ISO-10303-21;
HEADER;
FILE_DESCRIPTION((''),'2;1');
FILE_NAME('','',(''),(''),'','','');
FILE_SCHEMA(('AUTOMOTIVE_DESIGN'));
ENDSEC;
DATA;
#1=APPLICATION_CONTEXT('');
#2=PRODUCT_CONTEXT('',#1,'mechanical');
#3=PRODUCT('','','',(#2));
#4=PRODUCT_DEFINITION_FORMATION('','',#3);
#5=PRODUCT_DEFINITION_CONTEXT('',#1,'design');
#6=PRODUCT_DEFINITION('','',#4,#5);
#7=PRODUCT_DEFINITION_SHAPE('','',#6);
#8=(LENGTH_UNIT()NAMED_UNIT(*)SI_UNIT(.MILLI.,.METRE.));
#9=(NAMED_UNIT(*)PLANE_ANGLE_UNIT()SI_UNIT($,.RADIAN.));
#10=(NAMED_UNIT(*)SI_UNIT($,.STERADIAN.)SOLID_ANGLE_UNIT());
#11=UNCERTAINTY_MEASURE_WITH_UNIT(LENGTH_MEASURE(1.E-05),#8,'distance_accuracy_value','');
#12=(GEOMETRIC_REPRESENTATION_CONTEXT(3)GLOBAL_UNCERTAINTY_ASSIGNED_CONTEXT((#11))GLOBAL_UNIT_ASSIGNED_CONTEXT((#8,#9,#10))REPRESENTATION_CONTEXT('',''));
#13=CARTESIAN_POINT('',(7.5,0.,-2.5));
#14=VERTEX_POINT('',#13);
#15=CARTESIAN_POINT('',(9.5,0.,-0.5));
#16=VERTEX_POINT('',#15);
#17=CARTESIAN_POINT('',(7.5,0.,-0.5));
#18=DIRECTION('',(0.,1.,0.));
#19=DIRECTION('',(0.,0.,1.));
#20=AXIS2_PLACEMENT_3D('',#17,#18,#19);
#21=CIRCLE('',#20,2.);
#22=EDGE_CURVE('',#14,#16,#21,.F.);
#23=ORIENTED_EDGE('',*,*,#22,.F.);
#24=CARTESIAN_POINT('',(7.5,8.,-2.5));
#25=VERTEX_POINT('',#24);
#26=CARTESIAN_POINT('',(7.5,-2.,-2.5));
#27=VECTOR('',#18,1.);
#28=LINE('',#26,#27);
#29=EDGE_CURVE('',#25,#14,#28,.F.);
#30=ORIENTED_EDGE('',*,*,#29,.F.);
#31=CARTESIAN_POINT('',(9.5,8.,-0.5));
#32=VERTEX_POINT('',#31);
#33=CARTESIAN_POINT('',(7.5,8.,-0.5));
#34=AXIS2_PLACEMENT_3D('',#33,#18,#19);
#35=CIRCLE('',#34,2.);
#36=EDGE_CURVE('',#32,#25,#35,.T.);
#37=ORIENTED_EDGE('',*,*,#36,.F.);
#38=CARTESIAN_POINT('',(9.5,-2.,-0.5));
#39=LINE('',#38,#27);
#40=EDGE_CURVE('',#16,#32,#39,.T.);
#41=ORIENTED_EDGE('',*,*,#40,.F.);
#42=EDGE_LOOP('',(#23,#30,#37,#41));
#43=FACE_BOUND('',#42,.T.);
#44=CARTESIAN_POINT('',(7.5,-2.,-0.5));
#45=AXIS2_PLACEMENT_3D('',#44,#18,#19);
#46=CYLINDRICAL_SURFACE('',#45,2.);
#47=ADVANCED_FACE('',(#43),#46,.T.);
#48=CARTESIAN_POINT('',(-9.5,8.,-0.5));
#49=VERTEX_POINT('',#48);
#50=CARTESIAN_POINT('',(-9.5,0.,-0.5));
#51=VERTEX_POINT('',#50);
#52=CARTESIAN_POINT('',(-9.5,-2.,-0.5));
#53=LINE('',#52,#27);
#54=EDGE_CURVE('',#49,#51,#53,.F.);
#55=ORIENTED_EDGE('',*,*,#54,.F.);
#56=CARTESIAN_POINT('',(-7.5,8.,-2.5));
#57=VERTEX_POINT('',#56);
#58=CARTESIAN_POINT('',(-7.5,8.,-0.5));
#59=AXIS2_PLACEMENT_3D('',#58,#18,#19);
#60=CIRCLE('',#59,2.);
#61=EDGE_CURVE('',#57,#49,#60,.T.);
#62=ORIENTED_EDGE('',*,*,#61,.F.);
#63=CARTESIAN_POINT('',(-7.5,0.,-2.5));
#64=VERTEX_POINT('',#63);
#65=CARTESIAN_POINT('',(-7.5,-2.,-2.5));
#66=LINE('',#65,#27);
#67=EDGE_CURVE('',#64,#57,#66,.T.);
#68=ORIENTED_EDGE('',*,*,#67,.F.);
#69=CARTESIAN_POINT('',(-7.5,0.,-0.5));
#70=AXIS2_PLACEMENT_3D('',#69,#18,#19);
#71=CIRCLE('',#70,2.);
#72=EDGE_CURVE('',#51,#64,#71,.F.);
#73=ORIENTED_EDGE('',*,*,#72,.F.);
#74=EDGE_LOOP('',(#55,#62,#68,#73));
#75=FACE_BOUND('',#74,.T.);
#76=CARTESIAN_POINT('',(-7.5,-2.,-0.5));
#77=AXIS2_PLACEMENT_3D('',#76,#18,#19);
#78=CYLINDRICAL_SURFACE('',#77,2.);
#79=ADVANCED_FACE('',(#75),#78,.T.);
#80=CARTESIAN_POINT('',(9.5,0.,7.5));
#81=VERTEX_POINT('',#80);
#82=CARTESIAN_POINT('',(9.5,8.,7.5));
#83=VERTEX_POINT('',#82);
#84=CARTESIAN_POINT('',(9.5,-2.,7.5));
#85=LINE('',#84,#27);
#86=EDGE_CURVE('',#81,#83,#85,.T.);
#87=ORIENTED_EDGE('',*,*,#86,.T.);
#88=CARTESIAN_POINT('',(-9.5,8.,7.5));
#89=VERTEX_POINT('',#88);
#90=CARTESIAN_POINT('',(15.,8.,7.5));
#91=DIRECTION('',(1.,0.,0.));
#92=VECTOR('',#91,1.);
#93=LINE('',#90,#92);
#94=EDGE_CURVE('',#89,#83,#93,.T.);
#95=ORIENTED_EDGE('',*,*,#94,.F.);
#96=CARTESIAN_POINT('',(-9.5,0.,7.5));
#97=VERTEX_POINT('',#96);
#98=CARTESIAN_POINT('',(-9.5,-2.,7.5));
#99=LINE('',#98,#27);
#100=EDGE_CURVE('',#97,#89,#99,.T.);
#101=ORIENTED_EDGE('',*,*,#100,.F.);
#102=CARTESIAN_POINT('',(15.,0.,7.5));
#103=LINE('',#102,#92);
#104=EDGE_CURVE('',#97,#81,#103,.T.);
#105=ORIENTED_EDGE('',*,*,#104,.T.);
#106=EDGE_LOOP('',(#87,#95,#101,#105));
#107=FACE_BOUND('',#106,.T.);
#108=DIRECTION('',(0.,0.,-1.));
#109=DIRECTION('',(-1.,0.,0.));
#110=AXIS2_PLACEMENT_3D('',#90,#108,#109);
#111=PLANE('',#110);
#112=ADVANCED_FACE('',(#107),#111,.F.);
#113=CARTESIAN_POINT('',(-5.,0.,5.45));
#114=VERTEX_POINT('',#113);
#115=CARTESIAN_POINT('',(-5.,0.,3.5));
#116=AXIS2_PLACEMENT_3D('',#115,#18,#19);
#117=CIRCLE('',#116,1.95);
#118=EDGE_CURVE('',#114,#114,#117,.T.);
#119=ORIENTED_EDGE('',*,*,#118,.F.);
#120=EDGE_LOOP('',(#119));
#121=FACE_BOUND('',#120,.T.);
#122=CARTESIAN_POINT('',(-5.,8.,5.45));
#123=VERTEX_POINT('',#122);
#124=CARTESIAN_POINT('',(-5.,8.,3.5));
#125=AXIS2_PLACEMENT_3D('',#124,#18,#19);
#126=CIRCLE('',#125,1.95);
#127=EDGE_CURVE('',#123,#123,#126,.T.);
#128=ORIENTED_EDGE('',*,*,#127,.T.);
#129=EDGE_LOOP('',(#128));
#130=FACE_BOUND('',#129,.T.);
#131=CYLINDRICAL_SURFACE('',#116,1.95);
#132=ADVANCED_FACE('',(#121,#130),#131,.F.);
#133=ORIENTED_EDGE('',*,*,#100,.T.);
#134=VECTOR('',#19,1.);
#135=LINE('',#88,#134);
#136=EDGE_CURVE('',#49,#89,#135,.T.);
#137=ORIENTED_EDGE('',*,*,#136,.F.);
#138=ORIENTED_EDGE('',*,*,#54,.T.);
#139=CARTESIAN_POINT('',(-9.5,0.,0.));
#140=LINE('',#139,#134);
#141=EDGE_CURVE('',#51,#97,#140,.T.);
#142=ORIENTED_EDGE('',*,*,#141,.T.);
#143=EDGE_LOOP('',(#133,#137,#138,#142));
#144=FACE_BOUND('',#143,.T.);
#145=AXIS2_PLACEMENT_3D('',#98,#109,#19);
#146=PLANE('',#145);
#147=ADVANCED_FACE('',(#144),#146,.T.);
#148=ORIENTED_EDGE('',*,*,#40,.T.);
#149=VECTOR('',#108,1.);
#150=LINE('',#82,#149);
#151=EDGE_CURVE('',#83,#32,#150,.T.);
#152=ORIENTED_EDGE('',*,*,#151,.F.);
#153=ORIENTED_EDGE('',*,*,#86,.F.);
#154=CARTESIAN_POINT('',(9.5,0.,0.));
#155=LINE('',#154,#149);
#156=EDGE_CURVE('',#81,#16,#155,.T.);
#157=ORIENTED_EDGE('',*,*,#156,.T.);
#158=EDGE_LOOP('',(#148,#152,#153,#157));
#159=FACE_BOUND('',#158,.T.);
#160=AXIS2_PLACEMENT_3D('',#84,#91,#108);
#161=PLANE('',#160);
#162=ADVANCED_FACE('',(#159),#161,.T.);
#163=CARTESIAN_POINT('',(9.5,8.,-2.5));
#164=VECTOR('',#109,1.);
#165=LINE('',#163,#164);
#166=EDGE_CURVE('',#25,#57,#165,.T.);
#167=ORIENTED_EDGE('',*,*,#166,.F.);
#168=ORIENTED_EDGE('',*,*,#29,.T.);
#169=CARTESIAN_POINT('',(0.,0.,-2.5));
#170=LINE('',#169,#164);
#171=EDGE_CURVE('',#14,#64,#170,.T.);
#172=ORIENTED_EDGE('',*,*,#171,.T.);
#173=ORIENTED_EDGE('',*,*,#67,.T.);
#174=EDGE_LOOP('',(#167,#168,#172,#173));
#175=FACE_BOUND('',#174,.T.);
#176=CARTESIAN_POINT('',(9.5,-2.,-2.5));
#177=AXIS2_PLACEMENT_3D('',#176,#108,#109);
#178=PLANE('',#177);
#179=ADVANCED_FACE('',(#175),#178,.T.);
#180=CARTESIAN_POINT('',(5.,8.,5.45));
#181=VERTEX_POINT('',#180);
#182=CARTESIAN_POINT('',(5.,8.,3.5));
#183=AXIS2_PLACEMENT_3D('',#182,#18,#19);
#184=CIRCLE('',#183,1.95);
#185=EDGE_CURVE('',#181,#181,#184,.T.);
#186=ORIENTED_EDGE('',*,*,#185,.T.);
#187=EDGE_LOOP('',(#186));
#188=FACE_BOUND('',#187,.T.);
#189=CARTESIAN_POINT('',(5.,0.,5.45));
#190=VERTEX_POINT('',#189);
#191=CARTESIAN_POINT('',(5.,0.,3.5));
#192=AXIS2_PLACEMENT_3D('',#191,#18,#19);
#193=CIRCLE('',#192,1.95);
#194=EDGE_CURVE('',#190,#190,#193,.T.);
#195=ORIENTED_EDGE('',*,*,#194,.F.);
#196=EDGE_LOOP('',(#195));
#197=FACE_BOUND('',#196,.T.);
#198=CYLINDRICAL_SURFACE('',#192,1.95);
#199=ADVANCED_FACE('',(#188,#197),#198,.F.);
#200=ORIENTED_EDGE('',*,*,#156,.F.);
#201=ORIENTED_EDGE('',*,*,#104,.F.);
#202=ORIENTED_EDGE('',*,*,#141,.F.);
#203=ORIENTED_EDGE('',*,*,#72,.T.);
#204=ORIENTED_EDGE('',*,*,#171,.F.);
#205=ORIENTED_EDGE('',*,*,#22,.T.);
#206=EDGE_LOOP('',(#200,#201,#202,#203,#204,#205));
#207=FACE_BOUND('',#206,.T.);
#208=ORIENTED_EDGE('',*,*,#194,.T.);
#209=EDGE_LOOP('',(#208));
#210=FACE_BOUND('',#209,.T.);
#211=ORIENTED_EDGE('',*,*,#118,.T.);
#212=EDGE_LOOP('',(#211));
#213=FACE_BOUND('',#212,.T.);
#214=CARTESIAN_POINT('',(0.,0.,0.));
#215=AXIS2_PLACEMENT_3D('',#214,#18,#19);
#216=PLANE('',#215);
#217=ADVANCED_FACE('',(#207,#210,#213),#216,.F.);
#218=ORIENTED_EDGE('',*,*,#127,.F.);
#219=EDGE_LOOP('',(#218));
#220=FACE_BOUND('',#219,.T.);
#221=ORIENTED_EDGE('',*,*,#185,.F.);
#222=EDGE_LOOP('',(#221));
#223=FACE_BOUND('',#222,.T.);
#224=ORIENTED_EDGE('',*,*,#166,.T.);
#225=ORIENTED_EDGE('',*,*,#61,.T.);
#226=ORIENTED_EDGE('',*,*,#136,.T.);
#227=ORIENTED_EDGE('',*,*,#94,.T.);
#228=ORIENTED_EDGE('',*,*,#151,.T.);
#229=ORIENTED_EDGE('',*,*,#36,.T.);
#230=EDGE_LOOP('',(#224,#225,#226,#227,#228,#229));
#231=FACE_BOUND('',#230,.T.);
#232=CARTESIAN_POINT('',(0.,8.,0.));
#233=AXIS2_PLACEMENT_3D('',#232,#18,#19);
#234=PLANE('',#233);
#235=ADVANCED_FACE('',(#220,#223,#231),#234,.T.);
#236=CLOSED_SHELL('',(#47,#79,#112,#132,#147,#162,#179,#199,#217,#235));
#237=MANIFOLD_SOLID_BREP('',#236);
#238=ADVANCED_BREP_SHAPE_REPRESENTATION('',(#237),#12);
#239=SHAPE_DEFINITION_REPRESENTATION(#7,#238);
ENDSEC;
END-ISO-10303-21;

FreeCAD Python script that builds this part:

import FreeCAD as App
import Part
import Sketcher


def edges_at(feature, points):
    """Names of the edges that pass closest to the given points."""
    edges = feature.Shape.Edges
    near = lambda p: min(range(len(edges)), key=lambda i: edges[i].distToShape(Part.Vertex(*p))[0])
    return sorted({f"Edge{near(p) + 1}" for p in points})

doc = App.newDocument("Part")
params = doc.addObject("Spreadsheet::Sheet", "Params")
for row, (alias, value) in enumerate([
    ("sketch1_width", "30 mm"),
    ("sketch1_height", "15 mm"),
    ("pad1_length", "8 mm"),
    ("fillet_radius", "6 mm"),
    ("sketch2_diameter", "3.9 mm"),
    ("sketch3_width", "19 mm"),
    ("sketch3_height", "10 mm"),
    ("pocket2_length", "10 mm"),
    ("fillet2_radius", "2 mm"),
], start=1):
    params.set(f"A{row}", alias)
    params.set(f"B{row}", "=" + value)
    params.setAlias(f"B{row}", alias)

body = doc.addObject("PartDesign::Body", "Body")

# Sketch on XZ plane
sketch1 = doc.addObject("Sketcher::SketchObject", "Sketch")
body.addObject(sketch1)
sketch1.AttachmentSupport = (doc.XZ_Plane, [""])
sketch1.MapMode = "FlatFace"
sketch1.addGeometry([
    Part.LineSegment(App.Vector(-15, -8, 0), App.Vector(-15, 8, 0)),
    Part.LineSegment(App.Vector(-15, 8, 0), App.Vector(15, 8, 0)),
    Part.LineSegment(App.Vector(15, 8, 0), App.Vector(15, -8, 0)),
    Part.LineSegment(App.Vector(15, -8, 0), App.Vector(-15, -8, 0)),
], False)
sketch1.addConstraint([
    Sketcher.Constraint("Coincident", 0, 2, 1, 1),
    Sketcher.Constraint("Coincident", 1, 2, 2, 1),
    Sketcher.Constraint("Coincident", 2, 2, 3, 1),
    Sketcher.Constraint("Coincident", 3, 2, 0, 1),
    Sketcher.Constraint("Vertical", 0),
    Sketcher.Constraint("Horizontal", 1),
    Sketcher.Constraint("Vertical", 2),
    Sketcher.Constraint("Horizontal", 3),
    Sketcher.Constraint("Symmetric", 0, 2, 2, 2, -1, 1),
    Sketcher.Constraint("DistanceX", 1, 1, 1, 2, 30.0),
    Sketcher.Constraint("DistanceY", 0, 1, 0, 2, 15.0),
])
sketch1.setExpression("Constraints[9]", "Params.sketch1_width")
sketch1.setExpression("Constraints[10]", "Params.sketch1_height")
pad1 = doc.addObject("PartDesign::Pad", "Pad")
body.addObject(pad1)
pad1.Profile = sketch1
pad1.setExpression("Length", "Params.pad1_length")
pad1.Reversed = True
doc.recompute()

fillet = doc.addObject("PartDesign::Fillet", "Fillet")
body.addObject(fillet)
fillet.Base = (pad1, edges_at(pad1, [(-15, 4, -7.5), (15, 4, -7.5)]))
fillet.setExpression("Radius", "Params.fillet_radius")

# Sketch on XZ plane
sketch2 = doc.addObject("Sketcher::SketchObject", "Sketch001")
body.addObject(sketch2)
sketch2.AttachmentSupport = (doc.XZ_Plane, [""])
sketch2.MapMode = "FlatFace"
sketch2.AttachmentOffset = App.Placement(App.Vector(0, 0, -8), App.Rotation())
sketch2.addGeometry([
    Part.Circle(App.Vector(-5, 3.5, 0), App.Vector(0, 0, 1), 1.9),
    Part.Circle(App.Vector(5, 3.5, 0), App.Vector(0, 0, 1), 1.9),
], False)
sketch2.addConstraint([
    Sketcher.Constraint("Equal", 0, 1),
    Sketcher.Constraint("Symmetric", 0, 3, 1, 3, -2),
    Sketcher.Constraint("Diameter", 0, 3.9),
    Sketcher.Constraint("DistanceX", 0, 3, -1, 1, 5.0),
    Sketcher.Constraint("DistanceY", -1, 1, 0, 3, 3.5),
])
sketch2.setExpression("Constraints[2]", "Params.sketch2_diameter")
pocket1 = doc.addObject("PartDesign::Pocket", "Pocket")
body.addObject(pocket1)
pocket1.Profile = sketch2
pocket1.Type = "ThroughAll"
pocket1.Reversed = True

# Sketch on XZ plane
sketch3 = doc.addObject("Sketcher::SketchObject", "Sketch002")
body.addObject(sketch3)
sketch3.AttachmentSupport = (doc.XZ_Plane, [""])
sketch3.MapMode = "FlatFace"
sketch3.AttachmentOffset = App.Placement(App.Vector(0, 0, -8), App.Rotation())
sketch3.addGeometry([
    Part.LineSegment(App.Vector(-19, -12, 0), App.Vector(-19, 12, 0)),  # 0
    Part.LineSegment(App.Vector(-19, 12, 0), App.Vector(19, 12, 0)),  # 1
    Part.LineSegment(App.Vector(19, 12, 0), App.Vector(19, -12, 0)),  # 2
    Part.LineSegment(App.Vector(19, -12, 0), App.Vector(-19, -12, 0)),  # 3
    Part.LineSegment(App.Vector(10, 8, 0), App.Vector(-10, 8, 0)),  # 4
    Part.LineSegment(App.Vector(-10, 8, 0), App.Vector(-10, -2, 0)),  # 5
    Part.LineSegment(App.Vector(-10, -2, 0), App.Vector(10, -2, 0)),  # 6
    Part.LineSegment(App.Vector(10, -2, 0), App.Vector(10, 8, 0)),  # 7
], False)
sketch3.addConstraint([
    Sketcher.Constraint("Coincident", 0, 2, 1, 1),
    Sketcher.Constraint("Coincident", 1, 2, 2, 1),
    Sketcher.Constraint("Coincident", 2, 2, 3, 1),
    Sketcher.Constraint("Coincident", 3, 2, 0, 1),
    Sketcher.Constraint("Coincident", 4, 2, 5, 1),
    Sketcher.Constraint("Coincident", 5, 2, 6, 1),
    Sketcher.Constraint("Coincident", 6, 2, 7, 1),
    Sketcher.Constraint("Coincident", 7, 2, 4, 1),
    Sketcher.Constraint("Vertical", 0),
    Sketcher.Constraint("Horizontal", 1),
    Sketcher.Constraint("Vertical", 2),
    Sketcher.Constraint("Horizontal", 3),
    Sketcher.Constraint("Horizontal", 4),
    Sketcher.Constraint("Vertical", 5),
    Sketcher.Constraint("Horizontal", 6),
    Sketcher.Constraint("Vertical", 7),
    Sketcher.Constraint("Symmetric", 0, 2, 2, 2, -1, 1),
    Sketcher.Constraint("DistanceX", 4, 2, 4, 1, 19.0),
    Sketcher.Constraint("DistanceY", 5, 2, 5, 1, 10.0),
    Sketcher.Constraint("DistanceX", 4, 2, -1, 1, 9.5),
    Sketcher.Constraint("DistanceY", -1, 1, 4, 2, 7.5),
    Sketcher.Constraint("DistanceX", 1, 1, 1, 2, 38.896),
    Sketcher.Constraint("DistanceY", 0, 1, 0, 2, 23.896),
])
sketch3.setExpression("Constraints[17]", "Params.sketch3_width")
sketch3.setExpression("Constraints[18]", "Params.sketch3_height")
pocket2 = doc.addObject("PartDesign::Pocket", "Pocket001")
body.addObject(pocket2)
pocket2.Profile = sketch3
pocket2.setExpression("Length", "Params.pocket2_length")
pocket2.Reversed = True
doc.recompute()

fillet2 = doc.addObject("PartDesign::Fillet", "Fillet001")
body.addObject(fillet2)
fillet2.Base = (pocket2, edges_at(pocket2, [(-9.5, 4, -2.5), (9.5, 4, -2.5)]))
fillet2.setExpression("Radius", "Params.fillet2_radius")

doc.recompute()
